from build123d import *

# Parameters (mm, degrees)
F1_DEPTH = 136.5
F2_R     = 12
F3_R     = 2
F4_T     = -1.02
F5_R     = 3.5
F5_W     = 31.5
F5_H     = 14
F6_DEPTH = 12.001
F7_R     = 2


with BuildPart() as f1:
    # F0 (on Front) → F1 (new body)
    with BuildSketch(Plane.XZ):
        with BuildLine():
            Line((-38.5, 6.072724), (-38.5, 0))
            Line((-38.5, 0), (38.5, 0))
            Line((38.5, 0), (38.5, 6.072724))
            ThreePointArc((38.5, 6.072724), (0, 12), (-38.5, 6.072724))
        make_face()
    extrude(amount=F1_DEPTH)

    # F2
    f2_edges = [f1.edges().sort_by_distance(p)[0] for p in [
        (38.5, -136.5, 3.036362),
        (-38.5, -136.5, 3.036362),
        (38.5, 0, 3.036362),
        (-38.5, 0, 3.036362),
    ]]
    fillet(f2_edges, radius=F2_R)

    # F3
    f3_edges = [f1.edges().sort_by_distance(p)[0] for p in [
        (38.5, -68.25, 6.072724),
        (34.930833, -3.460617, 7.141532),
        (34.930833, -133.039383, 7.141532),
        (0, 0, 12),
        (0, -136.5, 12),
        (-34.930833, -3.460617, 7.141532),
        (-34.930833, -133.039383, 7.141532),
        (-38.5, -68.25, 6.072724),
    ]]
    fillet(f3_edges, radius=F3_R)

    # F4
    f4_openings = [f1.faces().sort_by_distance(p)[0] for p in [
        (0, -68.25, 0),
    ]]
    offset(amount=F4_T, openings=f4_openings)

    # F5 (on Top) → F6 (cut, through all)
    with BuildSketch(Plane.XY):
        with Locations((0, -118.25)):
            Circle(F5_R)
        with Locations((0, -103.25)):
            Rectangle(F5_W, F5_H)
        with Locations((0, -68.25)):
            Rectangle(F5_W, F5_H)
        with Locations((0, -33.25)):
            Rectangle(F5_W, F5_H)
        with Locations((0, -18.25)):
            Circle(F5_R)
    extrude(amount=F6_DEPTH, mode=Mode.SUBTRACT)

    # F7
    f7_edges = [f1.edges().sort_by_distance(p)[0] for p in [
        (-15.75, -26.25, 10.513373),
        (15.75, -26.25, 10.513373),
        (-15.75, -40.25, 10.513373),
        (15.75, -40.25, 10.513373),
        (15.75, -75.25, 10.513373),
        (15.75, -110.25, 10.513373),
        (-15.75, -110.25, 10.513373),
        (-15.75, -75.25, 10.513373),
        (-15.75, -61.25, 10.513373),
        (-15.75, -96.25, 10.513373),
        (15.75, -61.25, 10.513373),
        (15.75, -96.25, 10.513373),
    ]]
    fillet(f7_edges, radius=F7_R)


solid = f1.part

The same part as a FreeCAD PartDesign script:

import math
import FreeCAD as App
import Part
import Sketcher


def edges_at(feature, points):
    """Names of the edges that pass closest to the given points."""
    edges = feature.Shape.Edges
    near = lambda p: min(range(len(edges)), key=lambda i: edges[i].distToShape(Part.Vertex(*p))[0])
    return sorted({f"Edge{near(p) + 1}" for p in points})


def faces_at(feature, points):
    """Names of the faces that lie closest to the given points."""
    faces = feature.Shape.Faces
    near = lambda p: min(range(len(faces)), key=lambda i: faces[i].distToShape(Part.Vertex(*p))[0])
    return sorted({f"Face{near(p) + 1}" for p in points})

doc = App.newDocument("Part")
body = doc.addObject("PartDesign::Body", "Body")

sketch1 = body.newObject("Sketcher::SketchObject", "Sketch")
sketch1.AttachmentSupport = (doc.getObject("XZ_Plane"), [""])
sketch1.MapMode = "FlatFace"
sketch1.addGeometry([
    Part.LineSegment(App.Vector(-38.5, 6.072724, 0), App.Vector(-38.5, 0, 0)),
    Part.LineSegment(App.Vector(-38.5, 0, 0), App.Vector(38.5, 0, 0)),
    Part.LineSegment(App.Vector(38.5, 0, 0), App.Vector(38.5, 6.072724, 0)),
    Part.ArcOfCircle(Part.Circle(App.Vector(0, -115.999995, 0), App.Vector(0, 0, 1), 127.999995), math.radians(72.495466), math.radians(107.504534)),
], False)
sketch1.addConstraint([
    Sketcher.Constraint("Coincident", 0, 2, 1, 1),
    Sketcher.Constraint("Coincident", 1, 2, 2, 1),
    Sketcher.Constraint("Coincident", 2, 2, 3, 1),
    Sketcher.Constraint("Coincident", 3, 2, 0, 1),
    Sketcher.Constraint("Vertical", 0),
    Sketcher.Constraint("Horizontal", 1),
    Sketcher.Constraint("Vertical", 2),
    Sketcher.Constraint("Symmetric", 0, 2, 1, 2, -1, 1),
    Sketcher.Constraint("PointOnObject", 3, 3, -2),
    Sketcher.Constraint("DistanceX", 1, 1, 1, 2, 77.0),
    Sketcher.Constraint("Radius", 3, 127.999995),
    Sketcher.Constraint("DistanceY", 0, 2, 0, 1, 6.072724),
])
pad1 = body.newObject("PartDesign::Pad", "Pad")
pad1.Profile = sketch1
pad1.Length = 136.5
doc.recompute()

fillet = body.newObject("PartDesign::Fillet", "Fillet")
fillet.Base = (pad1, edges_at(pad1, [
    (38.5, -136.5, 3.036),
    (-38.5, -136.5, 3.036),
    (38.5, 0, 3.036),
    (-38.5, 0, 3.036),
]))
fillet.Radius = 12
doc.recompute()

fillet2 = body.newObject("PartDesign::Fillet", "Fillet001")
fillet2.Base = (fillet, edges_at(fillet, [
    (38.5, -68.25, 6.073),
    (34.931, -3.461, 7.142),
    (34.931, -133.039, 7.142),
    (0, 0, 12),
    (0, -136.5, 12),
    (-34.931, -3.461, 7.142),
    (-34.931, -133.039, 7.142),
    (-38.5, -68.25, 6.073),
]))
fillet2.Radius = 2
doc.recompute()

thickness = body.newObject("PartDesign::Thickness", "Thickness")
thickness.Base = (fillet2, faces_at(fillet2, [(0, -68.25, 0)]))
thickness.Value = 1.02
thickness.Reversed = True
thickness.Join = "Arc"

sketch2 = body.newObject("Sketcher::SketchObject", "Sketch001")
sketch2.AttachmentSupport = (doc.getObject("XY_Plane"), [""])
sketch2.MapMode = "FlatFace"
sketch2.addGeometry([
    Part.Circle(App.Vector(0, -118.25, 0), App.Vector(0, 0, 1), 3.5),
    Part.LineSegment(App.Vector(-15.75, -96.25, 0), App.Vector(-15.75, -110.25, 0)),
    Part.LineSegment(App.Vector(-15.75, -110.25, 0), App.Vector(15.75, -110.25, 0)),
    Part.LineSegment(App.Vector(15.75, -110.25, 0), App.Vector(15.75, -96.25, 0)),
    Part.LineSegment(App.Vector(15.75, -96.25, 0), App.Vector(-15.75, -96.25, 0)),
    Part.LineSegment(App.Vector(-15.75, -61.25, 0), App.Vector(-15.75, -75.25, 0)),
    Part.LineSegment(App.Vector(-15.75, -75.25, 0), App.Vector(15.75, -75.25, 0)),
    Part.LineSegment(App.Vector(15.75, -75.25, 0), App.Vector(15.75, -61.25, 0)),
    Part.LineSegment(App.Vector(15.75, -61.25, 0), App.Vector(-15.75, -61.25, 0)),
    Part.LineSegment(App.Vector(-15.75, -26.25, 0), App.Vector(-15.75, -40.25, 0)),
    Part.LineSegment(App.Vector(-15.75, -40.25, 0), App.Vector(15.75, -40.25, 0)),
    Part.LineSegment(App.Vector(15.75, -40.25, 0), App.Vector(15.75, -26.25, 0)),
    Part.LineSegment(App.Vector(15.75, -26.25, 0), App.Vector(-15.75, -26.25, 0)),
    Part.Circle(App.Vector(0, -18.25, 0), App.Vector(0, 0, 1), 3.5),
], False)
sketch2.addConstraint([
    Sketcher.Constraint("Coincident", 1, 2, 2, 1),
    Sketcher.Constraint("Coincident", 2, 2, 3, 1),
    Sketcher.Constraint("Coincident", 3, 2, 4, 1),
    Sketcher.Constraint("Coincident", 4, 2, 1, 1),
    Sketcher.Constraint("Coincident", 5, 2, 6, 1),
    Sketcher.Constraint("Coincident", 6, 2, 7, 1),
    Sketcher.Constraint("Coincident", 7, 2, 8, 1),
    Sketcher.Constraint("Coincident", 8, 2, 5, 1),
    Sketcher.Constraint("Coincident", 9, 2, 10, 1),
    Sketcher.Constraint("Coincident", 10, 2, 11, 1),
    Sketcher.Constraint("Coincident", 11, 2, 12, 1),
    Sketcher.Constraint("Coincident", 12, 2, 9, 1),
    Sketcher.Constraint("Vertical", 1),
    Sketcher.Constraint("Horizontal", 2),
    Sketcher.Constraint("Vertical", 3),
    Sketcher.Constraint("Horizontal", 4),
    Sketcher.Constraint("Vertical", 5),
    Sketcher.Constraint("Horizontal", 6),
    Sketcher.Constraint("Vertical", 7),
    Sketcher.Constraint("Horizontal", 8),
    Sketcher.Constraint("Vertical", 9),
    Sketcher.Constraint("Horizontal", 10),
    Sketcher.Constraint("Vertical", 11),
    Sketcher.Constraint("Horizontal", 12),
    Sketcher.Constraint("Equal", 0, 13),
    Sketcher.Constraint("PointOnObject", 0, 3, -2),
    Sketcher.Constraint("PointOnObject", 13, 3, -2),
    Sketcher.Constraint("Vertical", 4, 2, 5, 2),
    Sketcher.Constraint("Vertical", 3, 2, 6, 2),
    Sketcher.Constraint("Vertical", 8, 2, 9, 2),
    Sketcher.Constraint("Vertical", 7, 2, 10, 2),
    Sketcher.Constraint("Equal", 3, 5),
    Sketcher.Constraint("Equal", 7, 9),
    Sketcher.Constraint("Diameter", 0, 7.0),
    Sketcher.Constraint("DistanceY", 1, 2, 1, 1, 14.0),
    Sketcher.Constraint("DistanceX", 2, 1, 2, 2, 31.5),
    Sketcher.Constraint("DistanceY", 0, 3, 13, 3, 100.0),
    Sketcher.Constraint("DistanceY", 0, 3, 1, 2, 8.0),
    Sketcher.Constraint("DistanceY", 4, 2, 5, 2, 21.0),
    Sketcher.Constraint("DistanceY", 8, 2, 9, 2, 21.0),
    Sketcher.Constraint("DistanceY", 0, 3, -1, 1, 118.25),
    Sketcher.Constraint("DistanceX", 1, 2, -1, 1, 15.75),
])
pocket1 = body.newObject("PartDesign::Pocket", "Pocket")
pocket1.Profile = sketch2
pocket1.Type = "ThroughAll"
pocket1.Reversed = True
doc.recompute()

fillet3 = body.newObject("PartDesign::Fillet", "Fillet002")
fillet3.Base = (pocket1, edges_at(pocket1, [
    (-15.75, -26.25, 10.513),
    (15.75, -26.25, 10.513),
    (-15.75, -40.25, 10.513),
    (15.75, -40.25, 10.513),
    (15.75, -75.25, 10.513),
    (15.75, -110.25, 10.513),
    (-15.75, -110.25, 10.513),
    (-15.75, -75.25, 10.513),
    (-15.75, -61.25, 10.513),
    (-15.75, -96.25, 10.513),
    (15.75, -61.25, 10.513),
    (15.75, -96.25, 10.513),
]))
fillet3.Radius = 2

doc.recompute()
